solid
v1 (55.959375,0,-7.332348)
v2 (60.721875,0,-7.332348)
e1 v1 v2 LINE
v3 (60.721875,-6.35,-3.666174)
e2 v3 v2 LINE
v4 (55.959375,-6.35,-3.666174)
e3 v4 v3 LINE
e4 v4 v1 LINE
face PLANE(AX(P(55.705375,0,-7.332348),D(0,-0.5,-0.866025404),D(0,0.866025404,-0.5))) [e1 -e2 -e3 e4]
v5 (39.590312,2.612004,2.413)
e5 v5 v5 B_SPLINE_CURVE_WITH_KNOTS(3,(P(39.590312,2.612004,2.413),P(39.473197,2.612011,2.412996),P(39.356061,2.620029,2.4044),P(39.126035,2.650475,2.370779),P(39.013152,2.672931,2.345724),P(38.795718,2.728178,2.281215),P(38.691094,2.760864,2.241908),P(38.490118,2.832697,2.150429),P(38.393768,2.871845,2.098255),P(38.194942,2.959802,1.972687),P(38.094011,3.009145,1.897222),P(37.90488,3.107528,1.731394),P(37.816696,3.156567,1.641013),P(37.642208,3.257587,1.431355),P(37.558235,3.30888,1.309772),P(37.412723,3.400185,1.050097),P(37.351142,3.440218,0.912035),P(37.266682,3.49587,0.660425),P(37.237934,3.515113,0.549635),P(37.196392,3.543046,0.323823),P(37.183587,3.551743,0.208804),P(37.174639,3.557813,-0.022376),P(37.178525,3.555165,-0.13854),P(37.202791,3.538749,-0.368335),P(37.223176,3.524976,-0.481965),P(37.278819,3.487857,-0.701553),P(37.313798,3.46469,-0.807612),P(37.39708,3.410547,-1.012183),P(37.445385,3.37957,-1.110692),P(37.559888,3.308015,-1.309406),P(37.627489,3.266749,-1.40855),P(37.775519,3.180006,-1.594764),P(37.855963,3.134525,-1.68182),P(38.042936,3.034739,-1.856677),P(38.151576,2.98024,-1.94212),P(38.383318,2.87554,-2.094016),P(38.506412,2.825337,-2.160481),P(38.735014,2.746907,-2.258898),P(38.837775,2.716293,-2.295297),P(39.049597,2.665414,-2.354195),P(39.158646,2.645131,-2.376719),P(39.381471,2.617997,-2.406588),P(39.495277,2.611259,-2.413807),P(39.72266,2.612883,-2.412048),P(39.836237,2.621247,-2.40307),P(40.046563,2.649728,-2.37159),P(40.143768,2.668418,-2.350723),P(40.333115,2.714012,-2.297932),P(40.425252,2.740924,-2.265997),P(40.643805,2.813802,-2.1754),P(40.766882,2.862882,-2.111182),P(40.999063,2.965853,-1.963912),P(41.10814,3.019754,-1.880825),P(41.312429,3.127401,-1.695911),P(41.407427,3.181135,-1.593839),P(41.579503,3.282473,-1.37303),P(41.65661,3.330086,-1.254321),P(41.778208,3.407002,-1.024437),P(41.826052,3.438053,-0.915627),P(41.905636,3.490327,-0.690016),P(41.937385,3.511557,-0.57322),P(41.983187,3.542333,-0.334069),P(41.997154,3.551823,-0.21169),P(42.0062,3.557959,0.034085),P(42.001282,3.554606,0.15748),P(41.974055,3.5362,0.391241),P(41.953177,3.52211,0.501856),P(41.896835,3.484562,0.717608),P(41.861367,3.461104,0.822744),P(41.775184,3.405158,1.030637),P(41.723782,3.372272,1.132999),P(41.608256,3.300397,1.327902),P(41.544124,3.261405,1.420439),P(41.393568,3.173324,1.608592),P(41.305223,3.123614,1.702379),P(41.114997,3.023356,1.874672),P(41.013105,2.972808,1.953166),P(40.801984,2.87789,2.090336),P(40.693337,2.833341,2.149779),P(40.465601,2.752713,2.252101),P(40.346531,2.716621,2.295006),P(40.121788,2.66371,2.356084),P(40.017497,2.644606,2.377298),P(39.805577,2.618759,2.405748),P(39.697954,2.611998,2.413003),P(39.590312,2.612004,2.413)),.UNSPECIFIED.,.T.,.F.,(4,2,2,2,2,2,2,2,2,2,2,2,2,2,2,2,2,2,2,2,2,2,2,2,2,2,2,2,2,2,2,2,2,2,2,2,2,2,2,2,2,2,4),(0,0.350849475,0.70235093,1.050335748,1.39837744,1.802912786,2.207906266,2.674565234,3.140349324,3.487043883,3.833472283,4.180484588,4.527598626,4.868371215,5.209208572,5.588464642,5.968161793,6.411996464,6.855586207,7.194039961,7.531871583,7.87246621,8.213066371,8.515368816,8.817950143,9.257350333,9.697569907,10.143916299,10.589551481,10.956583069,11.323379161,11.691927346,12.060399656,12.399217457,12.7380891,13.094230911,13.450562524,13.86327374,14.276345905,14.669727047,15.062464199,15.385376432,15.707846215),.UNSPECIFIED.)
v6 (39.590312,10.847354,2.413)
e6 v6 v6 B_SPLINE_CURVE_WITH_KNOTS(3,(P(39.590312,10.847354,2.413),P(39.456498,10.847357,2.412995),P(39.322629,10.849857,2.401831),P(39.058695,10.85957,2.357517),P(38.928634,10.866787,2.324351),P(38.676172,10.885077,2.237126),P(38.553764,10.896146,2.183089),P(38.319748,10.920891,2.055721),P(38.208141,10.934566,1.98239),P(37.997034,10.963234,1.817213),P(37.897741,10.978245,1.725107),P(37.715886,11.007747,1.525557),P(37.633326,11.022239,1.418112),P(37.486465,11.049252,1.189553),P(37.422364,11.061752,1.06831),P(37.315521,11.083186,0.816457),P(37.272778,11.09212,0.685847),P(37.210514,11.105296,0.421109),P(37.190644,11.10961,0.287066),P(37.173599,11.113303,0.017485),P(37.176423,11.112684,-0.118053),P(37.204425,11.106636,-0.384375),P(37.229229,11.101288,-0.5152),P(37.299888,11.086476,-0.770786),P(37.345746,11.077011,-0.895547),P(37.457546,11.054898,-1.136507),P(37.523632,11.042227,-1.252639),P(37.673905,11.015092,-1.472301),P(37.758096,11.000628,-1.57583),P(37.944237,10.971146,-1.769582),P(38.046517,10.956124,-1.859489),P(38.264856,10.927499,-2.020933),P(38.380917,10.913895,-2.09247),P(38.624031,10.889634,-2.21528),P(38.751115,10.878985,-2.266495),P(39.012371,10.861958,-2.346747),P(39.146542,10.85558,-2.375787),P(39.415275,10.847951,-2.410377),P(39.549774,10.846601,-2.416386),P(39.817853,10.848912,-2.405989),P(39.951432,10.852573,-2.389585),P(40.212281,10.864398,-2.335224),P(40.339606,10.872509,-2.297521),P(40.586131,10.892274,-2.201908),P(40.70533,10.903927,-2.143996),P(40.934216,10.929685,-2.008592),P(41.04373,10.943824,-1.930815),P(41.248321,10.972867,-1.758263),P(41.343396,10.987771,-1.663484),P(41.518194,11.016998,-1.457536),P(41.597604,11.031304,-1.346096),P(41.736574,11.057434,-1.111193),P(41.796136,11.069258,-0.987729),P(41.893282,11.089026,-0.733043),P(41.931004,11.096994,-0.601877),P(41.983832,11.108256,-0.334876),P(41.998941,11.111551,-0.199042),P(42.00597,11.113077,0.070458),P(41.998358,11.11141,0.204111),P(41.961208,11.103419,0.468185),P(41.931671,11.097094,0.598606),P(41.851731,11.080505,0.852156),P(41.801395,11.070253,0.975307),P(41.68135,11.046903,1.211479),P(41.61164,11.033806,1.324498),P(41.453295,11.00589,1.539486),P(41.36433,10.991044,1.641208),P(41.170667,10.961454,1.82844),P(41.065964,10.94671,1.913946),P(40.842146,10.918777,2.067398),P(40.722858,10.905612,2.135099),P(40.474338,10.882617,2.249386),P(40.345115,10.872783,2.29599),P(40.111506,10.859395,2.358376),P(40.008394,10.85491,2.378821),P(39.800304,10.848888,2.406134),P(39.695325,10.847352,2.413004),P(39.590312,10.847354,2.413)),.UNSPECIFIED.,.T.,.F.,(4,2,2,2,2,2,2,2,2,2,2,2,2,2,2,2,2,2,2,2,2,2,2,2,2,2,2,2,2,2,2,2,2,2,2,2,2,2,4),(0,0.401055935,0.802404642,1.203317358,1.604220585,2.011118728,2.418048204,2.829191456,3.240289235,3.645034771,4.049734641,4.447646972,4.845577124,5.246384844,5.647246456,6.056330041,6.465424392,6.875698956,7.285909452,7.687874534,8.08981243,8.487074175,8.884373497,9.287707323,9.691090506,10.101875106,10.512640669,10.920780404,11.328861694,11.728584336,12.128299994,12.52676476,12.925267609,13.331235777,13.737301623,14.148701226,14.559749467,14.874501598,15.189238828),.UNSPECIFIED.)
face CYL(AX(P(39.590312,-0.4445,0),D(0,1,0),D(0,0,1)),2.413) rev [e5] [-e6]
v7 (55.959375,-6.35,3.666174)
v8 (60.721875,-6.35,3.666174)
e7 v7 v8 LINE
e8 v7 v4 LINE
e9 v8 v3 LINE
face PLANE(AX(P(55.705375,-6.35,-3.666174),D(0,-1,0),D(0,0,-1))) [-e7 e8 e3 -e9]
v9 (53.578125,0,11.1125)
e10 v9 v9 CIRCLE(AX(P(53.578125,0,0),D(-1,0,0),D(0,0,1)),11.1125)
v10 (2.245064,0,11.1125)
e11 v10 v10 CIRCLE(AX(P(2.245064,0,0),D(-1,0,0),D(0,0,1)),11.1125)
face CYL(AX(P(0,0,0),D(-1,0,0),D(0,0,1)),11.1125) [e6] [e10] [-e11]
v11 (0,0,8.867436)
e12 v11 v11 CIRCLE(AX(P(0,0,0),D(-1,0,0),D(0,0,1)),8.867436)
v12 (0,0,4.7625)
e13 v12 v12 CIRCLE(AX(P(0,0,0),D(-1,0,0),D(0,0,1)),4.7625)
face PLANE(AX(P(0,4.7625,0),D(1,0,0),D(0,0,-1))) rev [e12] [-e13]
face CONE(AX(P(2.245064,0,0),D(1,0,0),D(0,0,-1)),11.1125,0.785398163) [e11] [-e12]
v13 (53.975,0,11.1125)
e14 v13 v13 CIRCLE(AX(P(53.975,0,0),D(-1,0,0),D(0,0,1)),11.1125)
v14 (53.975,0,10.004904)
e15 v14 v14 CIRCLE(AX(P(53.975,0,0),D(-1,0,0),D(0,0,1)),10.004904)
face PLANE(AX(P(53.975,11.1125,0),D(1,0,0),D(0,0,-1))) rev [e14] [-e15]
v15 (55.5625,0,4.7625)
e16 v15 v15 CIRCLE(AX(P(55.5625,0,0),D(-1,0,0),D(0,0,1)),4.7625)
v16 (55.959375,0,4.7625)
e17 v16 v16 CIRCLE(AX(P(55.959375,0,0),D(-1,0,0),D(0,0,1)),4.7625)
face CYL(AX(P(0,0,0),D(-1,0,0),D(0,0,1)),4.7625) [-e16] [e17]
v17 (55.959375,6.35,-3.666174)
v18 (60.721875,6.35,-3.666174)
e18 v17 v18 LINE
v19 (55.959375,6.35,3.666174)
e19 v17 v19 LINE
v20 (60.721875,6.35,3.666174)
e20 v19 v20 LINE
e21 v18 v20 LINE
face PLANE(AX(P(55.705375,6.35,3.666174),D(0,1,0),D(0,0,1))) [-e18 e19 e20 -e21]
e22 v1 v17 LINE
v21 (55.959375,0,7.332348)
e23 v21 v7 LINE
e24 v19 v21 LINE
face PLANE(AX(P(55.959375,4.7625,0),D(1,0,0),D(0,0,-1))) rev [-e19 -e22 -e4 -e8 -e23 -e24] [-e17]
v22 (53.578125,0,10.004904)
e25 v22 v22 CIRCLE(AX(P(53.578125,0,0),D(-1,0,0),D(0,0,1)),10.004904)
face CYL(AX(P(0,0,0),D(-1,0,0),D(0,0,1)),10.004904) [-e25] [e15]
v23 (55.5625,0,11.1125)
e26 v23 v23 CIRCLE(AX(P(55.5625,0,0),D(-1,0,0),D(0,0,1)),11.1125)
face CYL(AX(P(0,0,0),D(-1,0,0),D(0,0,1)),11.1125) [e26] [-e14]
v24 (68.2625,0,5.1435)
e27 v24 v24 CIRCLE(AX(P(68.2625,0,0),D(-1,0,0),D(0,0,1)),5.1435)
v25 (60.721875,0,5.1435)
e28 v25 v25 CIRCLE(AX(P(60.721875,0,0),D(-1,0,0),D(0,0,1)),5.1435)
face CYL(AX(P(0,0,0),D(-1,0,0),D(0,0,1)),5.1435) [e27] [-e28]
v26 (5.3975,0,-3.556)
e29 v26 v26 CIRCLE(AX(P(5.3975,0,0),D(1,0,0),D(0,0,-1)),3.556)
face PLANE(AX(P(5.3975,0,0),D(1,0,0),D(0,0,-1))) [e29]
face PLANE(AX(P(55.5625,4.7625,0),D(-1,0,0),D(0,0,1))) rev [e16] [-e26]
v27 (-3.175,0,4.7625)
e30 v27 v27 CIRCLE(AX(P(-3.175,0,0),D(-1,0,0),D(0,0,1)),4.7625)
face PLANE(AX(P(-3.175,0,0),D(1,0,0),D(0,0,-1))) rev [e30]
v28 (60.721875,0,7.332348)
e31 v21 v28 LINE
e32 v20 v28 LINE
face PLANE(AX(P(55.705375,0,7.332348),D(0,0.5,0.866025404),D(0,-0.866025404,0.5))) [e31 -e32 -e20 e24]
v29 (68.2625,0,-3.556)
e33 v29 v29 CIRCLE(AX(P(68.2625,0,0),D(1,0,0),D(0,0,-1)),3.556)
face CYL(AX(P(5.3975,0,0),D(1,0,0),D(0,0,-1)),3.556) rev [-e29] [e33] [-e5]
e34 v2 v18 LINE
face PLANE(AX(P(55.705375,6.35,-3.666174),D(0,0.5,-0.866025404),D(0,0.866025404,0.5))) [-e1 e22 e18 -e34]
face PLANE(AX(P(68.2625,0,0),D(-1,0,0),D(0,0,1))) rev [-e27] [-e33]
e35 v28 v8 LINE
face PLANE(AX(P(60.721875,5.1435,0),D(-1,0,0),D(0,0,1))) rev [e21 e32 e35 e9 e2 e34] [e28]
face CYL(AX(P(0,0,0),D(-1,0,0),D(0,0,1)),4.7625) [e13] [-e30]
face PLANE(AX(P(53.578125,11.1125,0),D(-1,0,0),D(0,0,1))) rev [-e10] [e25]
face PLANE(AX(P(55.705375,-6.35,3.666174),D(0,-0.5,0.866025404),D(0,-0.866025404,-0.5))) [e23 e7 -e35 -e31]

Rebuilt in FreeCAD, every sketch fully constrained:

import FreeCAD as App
import Part
import Sketcher
Q = App.Units.Quantity


def add_polygon(sketch, points):
    """Adds a closed chain of lines whose ends are joined by coincident constraints."""
    first, n = sketch.GeometryCount, len(points)
    for a, b in zip(points, points[1:] + points[:1]):
        sketch.addGeometry(Part.LineSegment(App.Vector(*a, 0), App.Vector(*b, 0)), False)
    for i in range(n):
        sketch.addConstraint(Sketcher.Constraint("Coincident", first + i, 2, first + (i + 1) % n, 1))

doc = App.newDocument("Part")
body = doc.addObject("PartDesign::Body", "Body")

# Sketch on XY plane
sketch1 = body.newObject("Sketcher::SketchObject", "Sketch")
sketch1.AttachmentSupport = (doc.getObject("XY_Plane"), [""])
sketch1.MapMode = "FlatFace"
add_polygon(sketch1, [(2.25, 11.11), (0, 8.87), (0, 4.76), (-3.17, 4.76), (-3.17, 0), (68.26, 0), (68.26, 5.14), (60.72, 5.14), (60.72, 8.75), (55.96, 8.75), (55.96, 4.76), (55.56, 4.76), (55.56, 11.11), (53.98, 11.11), (53.98, 10), (53.58, 10), (53.58, 11.11)])  # lines 0-16
sketch1.addConstraint(Sketcher.Constraint("Vertical", 1))
sketch1.addConstraint(Sketcher.Constraint("Horizontal", 2))
sketch1.addConstraint(Sketcher.Constraint("Vertical", 3))
sketch1.addConstraint(Sketcher.Constraint("Horizontal", 4))
sketch1.addConstraint(Sketcher.Constraint("Vertical", 5))
sketch1.addConstraint(Sketcher.Constraint("Horizontal", 6))
sketch1.addConstraint(Sketcher.Constraint("Vertical", 7))
sketch1.addConstraint(Sketcher.Constraint("Horizontal", 8))
sketch1.addConstraint(Sketcher.Constraint("Vertical", 9))
sketch1.addConstraint(Sketcher.Constraint("Horizontal", 10))
sketch1.addConstraint(Sketcher.Constraint("Vertical", 11))
sketch1.addConstraint(Sketcher.Constraint("Horizontal", 12))
sketch1.addConstraint(Sketcher.Constraint("Vertical", 13))
sketch1.addConstraint(Sketcher.Constraint("Horizontal", 14))
sketch1.addConstraint(Sketcher.Constraint("Vertical", 15))
sketch1.addConstraint(Sketcher.Constraint("Horizontal", 16))
sketch1.addConstraint(Sketcher.Constraint("PointOnObject", 0, 2, -2))
sketch1.addConstraint(Sketcher.Constraint("PointOnObject", 3, 2, -1))
sketch1.addConstraint(Sketcher.Constraint("Horizontal", 2, 2, 9, 2))
sketch1.addConstraint(Sketcher.Constraint("Horizontal", 12, 2, 15, 2))
sketch1.addConstraint(Sketcher.Constraint("Equal", 10, 14))
sketch1.addConstraint(Sketcher.Constraint("Equal", 8, 3))
sketch1.addConstraint(Sketcher.Constraint("Angle", 0, Q("-135 deg")))
sketch1.addConstraint(Sketcher.Constraint("DistanceY", 11, 1, 11, 2, Q("0.25 in")))
sketch1.addConstraint(Sketcher.Constraint("DistanceX", 10, 2, 5, 2, Q("0.5 in")))
sketch1.addConstraint(Sketcher.Constraint("DistanceX", 2, 2, 2, 1, Q("0.125 in")))
sketch1.addConstraint(Sketcher.Constraint("DistanceX", 4, 1, 4, 2, Q("2.8125 in")))
sketch1.addConstraint(Sketcher.Constraint("DistanceX", 6, 2, 6, 1, Q("0.296875 in")))
sketch1.addConstraint(Sketcher.Constraint("DistanceX", 8, 2, 8, 1, Q("0.1875 in")))
sketch1.addConstraint(Sketcher.Constraint("DistanceX", 12, 2, 12, 1, Q("0.0625 in")))
sketch1.addConstraint(Sketcher.Constraint("Distance", 0, Q("0.125 in")))
sketch1.addConstraint(Sketcher.Constraint("DistanceY", 5, 1, 5, 2, Q("0.2025 in")))
sketch1.addConstraint(Sketcher.Constraint("DistanceY", 7, 1, 7, 2, Q("3.601919 mm")))
sketch1.addConstraint(Sketcher.Constraint("DistanceY", 13, 2, 13, 1, Q("1.107596 mm")))
revolution = body.newObject("PartDesign::Revolution", "Revolution")
revolution.Profile = sketch1
revolution.ReferenceAxis = (sketch1, ["H_Axis"])
revolution.Angle = 360

# Sketch on YZ plane
sketch2 = body.newObject("Sketcher::SketchObject", "Sketch001")
sketch2.AttachmentSupport = (doc.getObject("YZ_Plane"), [""])
sketch2.MapMode = "FlatFace"
sketch2.AttachmentOffset = App.Placement(App.Vector(0, 0, 55.705375), App.Rotation())
sketch2.addGeometry(Part.Circle(App.Vector(0, 0, 0), App.Vector(0, 0, 1), 9), False)  # 0
add_polygon(sketch2, [(0, 7), (6, 4), (6, -4), (0, -7), (-6, -4), (-6, 4)])  # lines 1-6
sketch2.addConstraint(Sketcher.Constraint("Vertical", 2))
sketch2.addConstraint(Sketcher.Constraint("Vertical", 5))
sketch2.addConstraint(Sketcher.Constraint("Coincident", 0, 3, -1, 1))
sketch2.addConstraint(Sketcher.Constraint("Symmetric", 1, 2, 4, 2, -1, 1))
sketch2.addConstraint(Sketcher.Constraint("Symmetric", 3, 2, 6, 2, -1, 1))
sketch2.addConstraint(Sketcher.Constraint("PointOnObject", 3, 2, -2))
sketch2.addConstraint(Sketcher.Constraint("Parallel", 3, 6))
sketch2.addConstraint(Sketcher.Constraint("Horizontal", 2, 2, 4, 2))
sketch2.addConstraint(Sketcher.Constraint("Angle", 1, Q("-30 deg")))
sketch2.addConstraint(Sketcher.Constraint("DistanceX", 4, 2, 2, 2, Q("0.5 in")))
sketch2.addConstraint(Sketcher.Constraint("Diameter", 0, Q("17.490839 mm")))
sketch2.addConstraint(Sketcher.Constraint("DistanceY", 2, 2, 2, 1, Q("7.332348 mm")))
pocket1 = body.newObject("PartDesign::Pocket", "Pocket")
pocket1.Profile = sketch2
pocket1.Length = Q("0.1975 in")
pocket1.Reversed = True

# Sketch on XZ plane
sketch3 = body.newObject("Sketcher::SketchObject", "Sketch002")
sketch3.AttachmentSupport = (doc.getObject("XZ_Plane"), [""])
sketch3.MapMode = "FlatFace"
sketch3.AttachmentOffset = App.Placement(App.Vector(0, 0, -0.4375 * 25.4), App.Rotation())
sketch3.addGeometry(Part.Circle(App.Vector(39.6, 0, 0), App.Vector(0, 0, 1), 2.4), False)
sketch3.addConstraint(Sketcher.Constraint("PointOnObject", 0, 3, -1))
sketch3.addConstraint(Sketcher.Constraint("Diameter", 0, Q("0.19 in")))
sketch3.addConstraint(Sketcher.Constraint("DistanceX", -1, 1, 0, 3, Q("39.590312 mm")))
pocket2 = body.newObject("PartDesign::Pocket", "Pocket001")
pocket2.Profile = sketch3
pocket2.Length = Q("0.455 in")
pocket2.Reversed = True

# Sketch on YZ plane
sketch4 = body.newObject("Sketcher::SketchObject", "Sketch003")
sketch4.AttachmentSupport = (doc.getObject("YZ_Plane"), [""])
sketch4.MapMode = "FlatFace"
sketch4.AttachmentOffset = App.Placement(App.Vector(0, 0, 2.6875 * 25.4), App.Rotation())
sketch4.addGeometry(Part.Circle(App.Vector(0, 0, 0), App.Vector(0, 0, 1), 3.6), False)
sketch4.addConstraint(Sketcher.Constraint("Coincident", 0, 3, -1, 1))
sketch4.addConstraint(Sketcher.Constraint("Diameter", 0, Q("0.28 in")))
pocket3 = body.newObject("PartDesign::Pocket", "Pocket002")
pocket3.Profile = sketch4
pocket3.Length = Q("2.475 in")

doc.recompute()
